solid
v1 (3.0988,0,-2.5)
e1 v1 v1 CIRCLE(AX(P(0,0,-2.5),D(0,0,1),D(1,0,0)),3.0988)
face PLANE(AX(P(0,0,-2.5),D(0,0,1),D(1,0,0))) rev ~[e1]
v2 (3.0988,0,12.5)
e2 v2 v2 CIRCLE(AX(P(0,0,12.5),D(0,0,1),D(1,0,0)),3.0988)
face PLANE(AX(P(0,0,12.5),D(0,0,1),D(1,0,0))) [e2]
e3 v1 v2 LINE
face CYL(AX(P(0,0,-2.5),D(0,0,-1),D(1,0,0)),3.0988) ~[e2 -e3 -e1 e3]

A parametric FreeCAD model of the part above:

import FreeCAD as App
import Part
import Sketcher

V = App.Vector

doc = App.newDocument("Part")
body = doc.addObject("PartDesign::Body", "Body")

# Sketch on XY plane
sketch1 = body.newObject("Sketcher::SketchObject", "Sketch")
sketch1.AttachmentSupport = (doc.getObject("XY_Plane"), [""])
sketch1.MapMode = "FlatFace"
sketch1.AttachmentOffset = App.Placement(V(0, 0, -2.5), App.Rotation())
sketch1.addGeometry(Part.Circle(V(0, 0, 0), V(0, 0, 1), 3.1), False)
sketch1.addConstraint([
    Sketcher.Constraint("Coincident", 0, 3, -1, 1),
    Sketcher.Constraint("Diameter", 0, 6.1976),
])
pad1 = body.newObject("PartDesign::Pad", "Pad")
pad1.Profile = sketch1
pad1.Length = 15

doc.recompute()
